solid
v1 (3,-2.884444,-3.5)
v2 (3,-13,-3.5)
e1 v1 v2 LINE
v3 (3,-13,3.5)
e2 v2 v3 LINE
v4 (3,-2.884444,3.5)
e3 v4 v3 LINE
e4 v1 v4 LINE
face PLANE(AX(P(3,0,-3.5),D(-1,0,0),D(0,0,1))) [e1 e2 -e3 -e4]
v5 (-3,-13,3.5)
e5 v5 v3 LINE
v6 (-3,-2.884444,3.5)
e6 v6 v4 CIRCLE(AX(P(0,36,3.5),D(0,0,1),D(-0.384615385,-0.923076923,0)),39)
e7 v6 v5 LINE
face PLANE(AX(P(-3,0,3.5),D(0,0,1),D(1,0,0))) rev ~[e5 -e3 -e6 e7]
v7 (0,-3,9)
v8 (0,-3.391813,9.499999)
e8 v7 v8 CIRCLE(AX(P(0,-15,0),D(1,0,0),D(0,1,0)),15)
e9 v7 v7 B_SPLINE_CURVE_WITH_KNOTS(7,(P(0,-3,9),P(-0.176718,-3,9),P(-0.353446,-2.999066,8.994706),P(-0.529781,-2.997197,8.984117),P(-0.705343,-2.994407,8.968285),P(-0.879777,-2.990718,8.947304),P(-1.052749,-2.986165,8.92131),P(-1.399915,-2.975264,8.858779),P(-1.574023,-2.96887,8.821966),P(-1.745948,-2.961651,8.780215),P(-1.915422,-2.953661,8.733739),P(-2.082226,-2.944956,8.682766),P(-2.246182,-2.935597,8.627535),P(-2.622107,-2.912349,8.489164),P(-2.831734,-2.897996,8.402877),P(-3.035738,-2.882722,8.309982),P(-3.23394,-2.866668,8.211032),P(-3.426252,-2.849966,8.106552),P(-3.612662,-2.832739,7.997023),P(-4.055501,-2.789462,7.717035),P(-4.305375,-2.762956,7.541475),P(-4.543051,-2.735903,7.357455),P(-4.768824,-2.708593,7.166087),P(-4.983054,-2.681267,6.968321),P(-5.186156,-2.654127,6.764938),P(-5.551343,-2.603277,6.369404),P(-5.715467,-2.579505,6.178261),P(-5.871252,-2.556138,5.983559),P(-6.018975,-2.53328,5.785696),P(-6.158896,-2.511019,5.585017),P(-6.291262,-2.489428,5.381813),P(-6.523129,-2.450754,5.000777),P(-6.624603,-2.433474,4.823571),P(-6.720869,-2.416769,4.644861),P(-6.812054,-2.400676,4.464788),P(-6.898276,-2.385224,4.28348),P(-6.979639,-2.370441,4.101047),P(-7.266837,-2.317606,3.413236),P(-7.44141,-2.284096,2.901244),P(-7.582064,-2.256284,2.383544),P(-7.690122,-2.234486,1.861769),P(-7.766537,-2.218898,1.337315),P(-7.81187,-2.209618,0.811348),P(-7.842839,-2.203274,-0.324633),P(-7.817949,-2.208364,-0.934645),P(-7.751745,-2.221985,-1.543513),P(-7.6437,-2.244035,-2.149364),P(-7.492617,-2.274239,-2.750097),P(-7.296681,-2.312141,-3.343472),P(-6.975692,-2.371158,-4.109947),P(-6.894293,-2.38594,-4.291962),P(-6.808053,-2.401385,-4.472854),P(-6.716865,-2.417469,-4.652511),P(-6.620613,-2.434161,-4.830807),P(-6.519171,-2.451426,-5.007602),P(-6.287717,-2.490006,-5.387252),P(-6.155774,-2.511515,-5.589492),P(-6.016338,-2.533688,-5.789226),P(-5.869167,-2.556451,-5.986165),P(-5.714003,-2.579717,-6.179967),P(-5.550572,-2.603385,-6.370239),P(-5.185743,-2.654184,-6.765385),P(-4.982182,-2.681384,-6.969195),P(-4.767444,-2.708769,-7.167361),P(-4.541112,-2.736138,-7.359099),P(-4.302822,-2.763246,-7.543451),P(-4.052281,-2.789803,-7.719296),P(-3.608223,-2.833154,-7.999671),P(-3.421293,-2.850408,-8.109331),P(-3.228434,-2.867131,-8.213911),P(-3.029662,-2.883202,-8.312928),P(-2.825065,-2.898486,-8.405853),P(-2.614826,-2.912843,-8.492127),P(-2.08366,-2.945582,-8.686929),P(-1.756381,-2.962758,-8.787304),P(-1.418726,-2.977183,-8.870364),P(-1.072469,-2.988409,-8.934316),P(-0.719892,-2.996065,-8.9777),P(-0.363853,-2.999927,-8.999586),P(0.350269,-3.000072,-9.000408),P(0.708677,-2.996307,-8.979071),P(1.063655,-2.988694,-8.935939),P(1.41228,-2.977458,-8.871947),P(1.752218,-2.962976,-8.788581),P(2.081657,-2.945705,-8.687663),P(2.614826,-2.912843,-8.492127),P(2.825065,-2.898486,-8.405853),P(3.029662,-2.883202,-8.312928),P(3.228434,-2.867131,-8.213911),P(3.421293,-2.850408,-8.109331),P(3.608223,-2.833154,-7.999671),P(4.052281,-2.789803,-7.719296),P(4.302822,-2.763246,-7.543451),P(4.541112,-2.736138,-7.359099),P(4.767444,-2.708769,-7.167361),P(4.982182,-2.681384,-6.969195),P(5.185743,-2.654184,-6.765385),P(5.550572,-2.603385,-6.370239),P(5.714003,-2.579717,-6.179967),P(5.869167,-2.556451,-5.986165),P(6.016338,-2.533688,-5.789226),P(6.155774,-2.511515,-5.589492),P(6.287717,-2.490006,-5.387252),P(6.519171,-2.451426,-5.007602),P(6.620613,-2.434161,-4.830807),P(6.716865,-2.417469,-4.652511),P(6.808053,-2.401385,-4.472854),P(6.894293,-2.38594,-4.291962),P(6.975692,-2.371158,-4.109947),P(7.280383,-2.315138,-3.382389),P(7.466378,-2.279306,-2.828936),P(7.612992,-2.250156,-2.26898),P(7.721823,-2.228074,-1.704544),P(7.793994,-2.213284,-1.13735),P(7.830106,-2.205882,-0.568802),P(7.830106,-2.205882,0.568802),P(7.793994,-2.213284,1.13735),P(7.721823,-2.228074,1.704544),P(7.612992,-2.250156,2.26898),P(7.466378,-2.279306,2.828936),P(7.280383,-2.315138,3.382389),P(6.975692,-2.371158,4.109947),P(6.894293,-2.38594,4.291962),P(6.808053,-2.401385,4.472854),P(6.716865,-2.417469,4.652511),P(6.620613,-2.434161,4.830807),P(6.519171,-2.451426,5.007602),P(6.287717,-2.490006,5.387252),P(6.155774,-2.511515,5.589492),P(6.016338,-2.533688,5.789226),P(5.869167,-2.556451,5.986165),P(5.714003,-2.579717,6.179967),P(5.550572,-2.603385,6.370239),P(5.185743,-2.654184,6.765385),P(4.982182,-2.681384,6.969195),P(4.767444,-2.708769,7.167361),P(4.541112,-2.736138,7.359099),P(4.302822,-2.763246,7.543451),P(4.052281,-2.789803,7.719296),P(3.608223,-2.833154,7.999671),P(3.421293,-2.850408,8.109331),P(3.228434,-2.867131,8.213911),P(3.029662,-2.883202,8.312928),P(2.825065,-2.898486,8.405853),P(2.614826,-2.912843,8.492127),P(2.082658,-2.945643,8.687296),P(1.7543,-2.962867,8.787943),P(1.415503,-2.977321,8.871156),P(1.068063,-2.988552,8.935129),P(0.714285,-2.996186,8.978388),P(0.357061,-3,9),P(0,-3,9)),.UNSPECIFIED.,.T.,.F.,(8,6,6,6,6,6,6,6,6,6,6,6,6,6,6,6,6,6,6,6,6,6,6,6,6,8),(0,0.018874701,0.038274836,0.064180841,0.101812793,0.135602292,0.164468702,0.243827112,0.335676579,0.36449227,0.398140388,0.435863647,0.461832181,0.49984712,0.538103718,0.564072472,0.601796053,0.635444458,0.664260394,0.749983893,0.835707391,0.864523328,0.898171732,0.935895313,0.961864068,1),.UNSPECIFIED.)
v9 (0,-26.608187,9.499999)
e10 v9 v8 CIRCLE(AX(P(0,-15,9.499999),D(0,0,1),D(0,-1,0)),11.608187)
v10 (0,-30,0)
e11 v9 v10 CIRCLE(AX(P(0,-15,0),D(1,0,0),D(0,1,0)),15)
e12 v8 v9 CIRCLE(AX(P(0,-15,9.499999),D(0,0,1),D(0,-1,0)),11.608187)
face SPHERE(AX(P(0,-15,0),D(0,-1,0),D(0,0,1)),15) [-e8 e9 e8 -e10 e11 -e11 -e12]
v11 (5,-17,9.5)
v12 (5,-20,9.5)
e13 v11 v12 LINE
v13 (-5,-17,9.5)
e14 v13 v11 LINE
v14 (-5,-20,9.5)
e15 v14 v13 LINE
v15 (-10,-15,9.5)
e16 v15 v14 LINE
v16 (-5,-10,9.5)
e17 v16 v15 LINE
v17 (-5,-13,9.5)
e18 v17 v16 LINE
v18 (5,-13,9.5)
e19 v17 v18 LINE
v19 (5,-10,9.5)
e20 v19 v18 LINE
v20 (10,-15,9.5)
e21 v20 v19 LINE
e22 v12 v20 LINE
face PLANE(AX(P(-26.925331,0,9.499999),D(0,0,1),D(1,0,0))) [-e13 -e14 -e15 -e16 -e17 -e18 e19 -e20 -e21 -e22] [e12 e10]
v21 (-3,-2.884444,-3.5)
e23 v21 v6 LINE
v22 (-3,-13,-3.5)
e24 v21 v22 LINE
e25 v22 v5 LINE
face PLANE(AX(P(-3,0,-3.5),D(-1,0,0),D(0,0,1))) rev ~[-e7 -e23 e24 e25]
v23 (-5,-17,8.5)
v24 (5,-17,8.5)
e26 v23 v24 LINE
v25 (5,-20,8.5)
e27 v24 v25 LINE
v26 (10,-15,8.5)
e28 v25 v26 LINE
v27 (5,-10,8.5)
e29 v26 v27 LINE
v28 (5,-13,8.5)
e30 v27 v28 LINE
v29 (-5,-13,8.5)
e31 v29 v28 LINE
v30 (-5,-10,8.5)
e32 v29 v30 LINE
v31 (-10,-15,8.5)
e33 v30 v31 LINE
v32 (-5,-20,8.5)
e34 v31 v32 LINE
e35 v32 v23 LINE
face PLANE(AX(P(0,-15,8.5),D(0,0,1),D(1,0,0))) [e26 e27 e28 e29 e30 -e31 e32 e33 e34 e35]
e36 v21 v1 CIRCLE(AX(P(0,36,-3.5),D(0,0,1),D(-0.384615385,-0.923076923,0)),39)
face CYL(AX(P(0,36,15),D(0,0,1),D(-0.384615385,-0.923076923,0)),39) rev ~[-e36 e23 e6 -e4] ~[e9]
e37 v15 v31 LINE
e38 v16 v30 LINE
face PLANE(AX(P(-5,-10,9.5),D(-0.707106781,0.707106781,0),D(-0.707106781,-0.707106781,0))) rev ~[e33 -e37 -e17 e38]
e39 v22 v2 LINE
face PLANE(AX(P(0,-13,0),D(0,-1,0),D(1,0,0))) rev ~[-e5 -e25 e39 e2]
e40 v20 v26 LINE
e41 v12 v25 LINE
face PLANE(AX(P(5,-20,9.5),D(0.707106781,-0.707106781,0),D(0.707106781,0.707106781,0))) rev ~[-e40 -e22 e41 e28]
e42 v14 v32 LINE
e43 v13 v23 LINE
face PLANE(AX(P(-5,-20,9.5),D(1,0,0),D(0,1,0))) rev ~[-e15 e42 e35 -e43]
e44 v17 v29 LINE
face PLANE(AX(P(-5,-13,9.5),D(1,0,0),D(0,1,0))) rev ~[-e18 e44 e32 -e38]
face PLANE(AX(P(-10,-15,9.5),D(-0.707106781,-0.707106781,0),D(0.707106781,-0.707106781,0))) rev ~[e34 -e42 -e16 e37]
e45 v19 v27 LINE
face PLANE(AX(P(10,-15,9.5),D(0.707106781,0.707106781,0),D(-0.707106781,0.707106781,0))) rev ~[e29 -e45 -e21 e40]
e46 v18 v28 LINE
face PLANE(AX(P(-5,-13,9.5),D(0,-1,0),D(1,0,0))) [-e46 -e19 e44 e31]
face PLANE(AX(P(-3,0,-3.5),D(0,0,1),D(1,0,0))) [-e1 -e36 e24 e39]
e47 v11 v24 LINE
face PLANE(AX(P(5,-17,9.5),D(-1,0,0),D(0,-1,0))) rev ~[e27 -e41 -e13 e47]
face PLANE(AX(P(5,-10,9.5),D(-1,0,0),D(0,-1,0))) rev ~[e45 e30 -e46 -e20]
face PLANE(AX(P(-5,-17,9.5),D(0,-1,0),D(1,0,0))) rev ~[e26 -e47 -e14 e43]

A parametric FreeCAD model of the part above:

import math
import FreeCAD as App
import Part
import Sketcher

V = App.Vector
Q = App.Units.Quantity


def add_polygon(sketch, points):
    """Adds a closed chain of lines whose ends are joined by coincident constraints."""
    first, n = sketch.GeometryCount, len(points)
    for a, b in zip(points, points[1:] + points[:1]):
        sketch.addGeometry(Part.LineSegment(App.Vector(*a, 0), App.Vector(*b, 0)), False)
    for i in range(n):
        sketch.addConstraint(Sketcher.Constraint("Coincident", first + i, 2, first + (i + 1) % n, 1))

doc = App.newDocument("Part")
body = doc.addObject("PartDesign::Body", "Body")

# Sketch on YZ plane
sketch1 = body.newObject("Sketcher::SketchObject", "Sketch")
sketch1.AttachmentSupport = (doc.getObject("YZ_Plane"), [""])
sketch1.MapMode = "FlatFace"
sketch1.addGeometry([
    Part.LineSegment(V(-30, 0, 0), V(0, 0, 0)),
    Part.ArcOfCircle(Part.Circle(V(-15, 0, 0), V(0, 0, 1), 15), math.radians(0), math.radians(180)),
], False)
sketch1.addConstraint([
    Sketcher.Constraint("Coincident", 0, 1, 1, 2),
    Sketcher.Constraint("Coincident", 1, 1, 0, 2),
    Sketcher.Constraint("Horizontal", 0),
    Sketcher.Constraint("Coincident", 1, 1, -1, 1),
    Sketcher.Constraint("PointOnObject", 1, 3, -1),
    Sketcher.Constraint("Radius", 1, Q("15 mm")),
])
revolution = body.newObject("PartDesign::Revolution", "Revolution")
revolution.Profile = sketch1
revolution.ReferenceAxis = (sketch1, ["H_Axis"])
revolution.Angle = 360

# Sketch on XY plane
sketch2 = body.newObject("Sketcher::SketchObject", "Sketch001")
sketch2.AttachmentSupport = (doc.getObject("XY_Plane"), [""])
sketch2.MapMode = "FlatFace"
sketch2.AttachmentOffset = App.Placement(V(0, 0, 15), App.Rotation())
sketch2.addGeometry([
    Part.LineSegment(V(15, 0, 0), V(-15, 0, 0)),
    Part.ArcOfCircle(Part.Circle(V(0, 36, 0), V(0, 0, 1), 39), math.radians(-112.619865), math.radians(-67.380135)),
], False)
sketch2.addConstraint([
    Sketcher.Constraint("Coincident", 0, 1, 1, 2),
    Sketcher.Constraint("Coincident", 1, 1, 0, 2),
    Sketcher.Constraint("Horizontal", 0),
    Sketcher.Constraint("Symmetric", 0, 1, 1, 1, -1, 1),
    Sketcher.Constraint("Radius", 1, Q("39 mm")),
    Sketcher.Constraint("DistanceX", 0, 2, 0, 1, Q("30 mm")),
])
pocket1 = body.newObject("PartDesign::Pocket", "Pocket")
pocket1.Profile = sketch2
pocket1.Type = "ThroughAll"

# Sketch on XZ plane
sketch3 = body.newObject("Sketcher::SketchObject", "Sketch002")
sketch3.AttachmentSupport = (doc.getObject("XZ_Plane"), [""])
sketch3.MapMode = "FlatFace"
add_polygon(sketch3, [(-3, 3.5), (-3, -3.5), (3, -3.5), (3, 3.5)])  # lines 0-3
sketch3.addConstraint([
    Sketcher.Constraint("Vertical", 0),
    Sketcher.Constraint("Horizontal", 1),
    Sketcher.Constraint("Vertical", 2),
    Sketcher.Constraint("Horizontal", 3),
    Sketcher.Constraint("Symmetric", 0, 2, 2, 2, -1, 1),
    Sketcher.Constraint("DistanceX", 1, 1, 1, 2, Q("6 mm")),
    Sketcher.Constraint("DistanceY", 0, 2, 0, 1, Q("7 mm")),
])
pocket2 = body.newObject("PartDesign::Pocket", "Pocket001")
pocket2.Profile = sketch3
pocket2.Length = 13
pocket2.Reversed = True

# Sketch on XZ plane
sketch4 = body.newObject("Sketcher::SketchObject", "Sketch003")
sketch4.AttachmentSupport = (doc.getObject("XZ_Plane"), [""])
sketch4.MapMode = "FlatFace"
add_polygon(sketch4, [(-26.925331, 17.532864), (-26.925331, 9.499999), (23.470093, 9.499999), (23.470093, 17.532864)])  # lines 0-3
sketch4.addConstraint([
    Sketcher.Constraint("Vertical", 0),
    Sketcher.Constraint("Horizontal", 1),
    Sketcher.Constraint("Vertical", 2),
    Sketcher.Constraint("Horizontal", 3),
    Sketcher.Constraint("DistanceY", -1, 1, 0, 2, Q("9.499999 mm")),
    Sketcher.Constraint("DistanceX", 1, 1, 1, 2, Q("50.395424 mm")),
    Sketcher.Constraint("DistanceY", 0, 2, 0, 1, Q("8.032865 mm")),
    Sketcher.Constraint("DistanceX", 0, 2, -1, 1, Q("26.925331 mm")),
])
pocket3 = body.newObject("PartDesign::Pocket", "Pocket002")
pocket3.Profile = sketch4
pocket3.Type = "ThroughAll"
pocket3.Reversed = True

# Sketch on XY plane
sketch5 = body.newObject("Sketcher::SketchObject", "Sketch004")
sketch5.AttachmentSupport = (doc.getObject("XY_Plane"), [""])
sketch5.MapMode = "FlatFace"
sketch5.AttachmentOffset = App.Placement(V(0, 0, 9.5), App.Rotation())
add_polygon(sketch5, [(-5, -17), (5, -17), (5, -20), (10, -15), (5, -10), (5, -13), (-5, -13), (-5, -10), (-10, -15), (-5, -20)])  # lines 0-9
sketch5.addConstraint([
    Sketcher.Constraint("Horizontal", 0),
    Sketcher.Constraint("Vertical", 1),
    Sketcher.Constraint("Vertical", 4),
    Sketcher.Constraint("Horizontal", 5),
    Sketcher.Constraint("Vertical", 6),
    Sketcher.Constraint("Vertical", 9),
    Sketcher.Constraint("Symmetric", 3, 2, 6, 2, -2),
    Sketcher.Constraint("Symmetric", 2, 2, 7, 2, -2),
    Sketcher.Constraint("Symmetric", 1, 2, 8, 2, -2),
    Sketcher.Constraint("Perpendicular", 2, 3),
    Sketcher.Constraint("Perpendicular", 3, 7),
    Sketcher.Constraint("Vertical", 1, 2, 3, 2),
    Sketcher.Constraint("Equal", 1, 4),
    Sketcher.Constraint("DistanceX", 0, 1, 0, 2, Q("10 mm")),
    Sketcher.Constraint("DistanceY", 1, 2, 1, 1, Q("3 mm")),
    Sketcher.Constraint("DistanceY", 0, 2, -1, 1, Q("17 mm")),
    Sketcher.Constraint("DistanceX", -1, 1, 2, 2, Q("10 mm")),
])
pocket4 = body.newObject("PartDesign::Pocket", "Pocket003")
pocket4.Profile = sketch5
pocket4.Length = 1

doc.recompute()
